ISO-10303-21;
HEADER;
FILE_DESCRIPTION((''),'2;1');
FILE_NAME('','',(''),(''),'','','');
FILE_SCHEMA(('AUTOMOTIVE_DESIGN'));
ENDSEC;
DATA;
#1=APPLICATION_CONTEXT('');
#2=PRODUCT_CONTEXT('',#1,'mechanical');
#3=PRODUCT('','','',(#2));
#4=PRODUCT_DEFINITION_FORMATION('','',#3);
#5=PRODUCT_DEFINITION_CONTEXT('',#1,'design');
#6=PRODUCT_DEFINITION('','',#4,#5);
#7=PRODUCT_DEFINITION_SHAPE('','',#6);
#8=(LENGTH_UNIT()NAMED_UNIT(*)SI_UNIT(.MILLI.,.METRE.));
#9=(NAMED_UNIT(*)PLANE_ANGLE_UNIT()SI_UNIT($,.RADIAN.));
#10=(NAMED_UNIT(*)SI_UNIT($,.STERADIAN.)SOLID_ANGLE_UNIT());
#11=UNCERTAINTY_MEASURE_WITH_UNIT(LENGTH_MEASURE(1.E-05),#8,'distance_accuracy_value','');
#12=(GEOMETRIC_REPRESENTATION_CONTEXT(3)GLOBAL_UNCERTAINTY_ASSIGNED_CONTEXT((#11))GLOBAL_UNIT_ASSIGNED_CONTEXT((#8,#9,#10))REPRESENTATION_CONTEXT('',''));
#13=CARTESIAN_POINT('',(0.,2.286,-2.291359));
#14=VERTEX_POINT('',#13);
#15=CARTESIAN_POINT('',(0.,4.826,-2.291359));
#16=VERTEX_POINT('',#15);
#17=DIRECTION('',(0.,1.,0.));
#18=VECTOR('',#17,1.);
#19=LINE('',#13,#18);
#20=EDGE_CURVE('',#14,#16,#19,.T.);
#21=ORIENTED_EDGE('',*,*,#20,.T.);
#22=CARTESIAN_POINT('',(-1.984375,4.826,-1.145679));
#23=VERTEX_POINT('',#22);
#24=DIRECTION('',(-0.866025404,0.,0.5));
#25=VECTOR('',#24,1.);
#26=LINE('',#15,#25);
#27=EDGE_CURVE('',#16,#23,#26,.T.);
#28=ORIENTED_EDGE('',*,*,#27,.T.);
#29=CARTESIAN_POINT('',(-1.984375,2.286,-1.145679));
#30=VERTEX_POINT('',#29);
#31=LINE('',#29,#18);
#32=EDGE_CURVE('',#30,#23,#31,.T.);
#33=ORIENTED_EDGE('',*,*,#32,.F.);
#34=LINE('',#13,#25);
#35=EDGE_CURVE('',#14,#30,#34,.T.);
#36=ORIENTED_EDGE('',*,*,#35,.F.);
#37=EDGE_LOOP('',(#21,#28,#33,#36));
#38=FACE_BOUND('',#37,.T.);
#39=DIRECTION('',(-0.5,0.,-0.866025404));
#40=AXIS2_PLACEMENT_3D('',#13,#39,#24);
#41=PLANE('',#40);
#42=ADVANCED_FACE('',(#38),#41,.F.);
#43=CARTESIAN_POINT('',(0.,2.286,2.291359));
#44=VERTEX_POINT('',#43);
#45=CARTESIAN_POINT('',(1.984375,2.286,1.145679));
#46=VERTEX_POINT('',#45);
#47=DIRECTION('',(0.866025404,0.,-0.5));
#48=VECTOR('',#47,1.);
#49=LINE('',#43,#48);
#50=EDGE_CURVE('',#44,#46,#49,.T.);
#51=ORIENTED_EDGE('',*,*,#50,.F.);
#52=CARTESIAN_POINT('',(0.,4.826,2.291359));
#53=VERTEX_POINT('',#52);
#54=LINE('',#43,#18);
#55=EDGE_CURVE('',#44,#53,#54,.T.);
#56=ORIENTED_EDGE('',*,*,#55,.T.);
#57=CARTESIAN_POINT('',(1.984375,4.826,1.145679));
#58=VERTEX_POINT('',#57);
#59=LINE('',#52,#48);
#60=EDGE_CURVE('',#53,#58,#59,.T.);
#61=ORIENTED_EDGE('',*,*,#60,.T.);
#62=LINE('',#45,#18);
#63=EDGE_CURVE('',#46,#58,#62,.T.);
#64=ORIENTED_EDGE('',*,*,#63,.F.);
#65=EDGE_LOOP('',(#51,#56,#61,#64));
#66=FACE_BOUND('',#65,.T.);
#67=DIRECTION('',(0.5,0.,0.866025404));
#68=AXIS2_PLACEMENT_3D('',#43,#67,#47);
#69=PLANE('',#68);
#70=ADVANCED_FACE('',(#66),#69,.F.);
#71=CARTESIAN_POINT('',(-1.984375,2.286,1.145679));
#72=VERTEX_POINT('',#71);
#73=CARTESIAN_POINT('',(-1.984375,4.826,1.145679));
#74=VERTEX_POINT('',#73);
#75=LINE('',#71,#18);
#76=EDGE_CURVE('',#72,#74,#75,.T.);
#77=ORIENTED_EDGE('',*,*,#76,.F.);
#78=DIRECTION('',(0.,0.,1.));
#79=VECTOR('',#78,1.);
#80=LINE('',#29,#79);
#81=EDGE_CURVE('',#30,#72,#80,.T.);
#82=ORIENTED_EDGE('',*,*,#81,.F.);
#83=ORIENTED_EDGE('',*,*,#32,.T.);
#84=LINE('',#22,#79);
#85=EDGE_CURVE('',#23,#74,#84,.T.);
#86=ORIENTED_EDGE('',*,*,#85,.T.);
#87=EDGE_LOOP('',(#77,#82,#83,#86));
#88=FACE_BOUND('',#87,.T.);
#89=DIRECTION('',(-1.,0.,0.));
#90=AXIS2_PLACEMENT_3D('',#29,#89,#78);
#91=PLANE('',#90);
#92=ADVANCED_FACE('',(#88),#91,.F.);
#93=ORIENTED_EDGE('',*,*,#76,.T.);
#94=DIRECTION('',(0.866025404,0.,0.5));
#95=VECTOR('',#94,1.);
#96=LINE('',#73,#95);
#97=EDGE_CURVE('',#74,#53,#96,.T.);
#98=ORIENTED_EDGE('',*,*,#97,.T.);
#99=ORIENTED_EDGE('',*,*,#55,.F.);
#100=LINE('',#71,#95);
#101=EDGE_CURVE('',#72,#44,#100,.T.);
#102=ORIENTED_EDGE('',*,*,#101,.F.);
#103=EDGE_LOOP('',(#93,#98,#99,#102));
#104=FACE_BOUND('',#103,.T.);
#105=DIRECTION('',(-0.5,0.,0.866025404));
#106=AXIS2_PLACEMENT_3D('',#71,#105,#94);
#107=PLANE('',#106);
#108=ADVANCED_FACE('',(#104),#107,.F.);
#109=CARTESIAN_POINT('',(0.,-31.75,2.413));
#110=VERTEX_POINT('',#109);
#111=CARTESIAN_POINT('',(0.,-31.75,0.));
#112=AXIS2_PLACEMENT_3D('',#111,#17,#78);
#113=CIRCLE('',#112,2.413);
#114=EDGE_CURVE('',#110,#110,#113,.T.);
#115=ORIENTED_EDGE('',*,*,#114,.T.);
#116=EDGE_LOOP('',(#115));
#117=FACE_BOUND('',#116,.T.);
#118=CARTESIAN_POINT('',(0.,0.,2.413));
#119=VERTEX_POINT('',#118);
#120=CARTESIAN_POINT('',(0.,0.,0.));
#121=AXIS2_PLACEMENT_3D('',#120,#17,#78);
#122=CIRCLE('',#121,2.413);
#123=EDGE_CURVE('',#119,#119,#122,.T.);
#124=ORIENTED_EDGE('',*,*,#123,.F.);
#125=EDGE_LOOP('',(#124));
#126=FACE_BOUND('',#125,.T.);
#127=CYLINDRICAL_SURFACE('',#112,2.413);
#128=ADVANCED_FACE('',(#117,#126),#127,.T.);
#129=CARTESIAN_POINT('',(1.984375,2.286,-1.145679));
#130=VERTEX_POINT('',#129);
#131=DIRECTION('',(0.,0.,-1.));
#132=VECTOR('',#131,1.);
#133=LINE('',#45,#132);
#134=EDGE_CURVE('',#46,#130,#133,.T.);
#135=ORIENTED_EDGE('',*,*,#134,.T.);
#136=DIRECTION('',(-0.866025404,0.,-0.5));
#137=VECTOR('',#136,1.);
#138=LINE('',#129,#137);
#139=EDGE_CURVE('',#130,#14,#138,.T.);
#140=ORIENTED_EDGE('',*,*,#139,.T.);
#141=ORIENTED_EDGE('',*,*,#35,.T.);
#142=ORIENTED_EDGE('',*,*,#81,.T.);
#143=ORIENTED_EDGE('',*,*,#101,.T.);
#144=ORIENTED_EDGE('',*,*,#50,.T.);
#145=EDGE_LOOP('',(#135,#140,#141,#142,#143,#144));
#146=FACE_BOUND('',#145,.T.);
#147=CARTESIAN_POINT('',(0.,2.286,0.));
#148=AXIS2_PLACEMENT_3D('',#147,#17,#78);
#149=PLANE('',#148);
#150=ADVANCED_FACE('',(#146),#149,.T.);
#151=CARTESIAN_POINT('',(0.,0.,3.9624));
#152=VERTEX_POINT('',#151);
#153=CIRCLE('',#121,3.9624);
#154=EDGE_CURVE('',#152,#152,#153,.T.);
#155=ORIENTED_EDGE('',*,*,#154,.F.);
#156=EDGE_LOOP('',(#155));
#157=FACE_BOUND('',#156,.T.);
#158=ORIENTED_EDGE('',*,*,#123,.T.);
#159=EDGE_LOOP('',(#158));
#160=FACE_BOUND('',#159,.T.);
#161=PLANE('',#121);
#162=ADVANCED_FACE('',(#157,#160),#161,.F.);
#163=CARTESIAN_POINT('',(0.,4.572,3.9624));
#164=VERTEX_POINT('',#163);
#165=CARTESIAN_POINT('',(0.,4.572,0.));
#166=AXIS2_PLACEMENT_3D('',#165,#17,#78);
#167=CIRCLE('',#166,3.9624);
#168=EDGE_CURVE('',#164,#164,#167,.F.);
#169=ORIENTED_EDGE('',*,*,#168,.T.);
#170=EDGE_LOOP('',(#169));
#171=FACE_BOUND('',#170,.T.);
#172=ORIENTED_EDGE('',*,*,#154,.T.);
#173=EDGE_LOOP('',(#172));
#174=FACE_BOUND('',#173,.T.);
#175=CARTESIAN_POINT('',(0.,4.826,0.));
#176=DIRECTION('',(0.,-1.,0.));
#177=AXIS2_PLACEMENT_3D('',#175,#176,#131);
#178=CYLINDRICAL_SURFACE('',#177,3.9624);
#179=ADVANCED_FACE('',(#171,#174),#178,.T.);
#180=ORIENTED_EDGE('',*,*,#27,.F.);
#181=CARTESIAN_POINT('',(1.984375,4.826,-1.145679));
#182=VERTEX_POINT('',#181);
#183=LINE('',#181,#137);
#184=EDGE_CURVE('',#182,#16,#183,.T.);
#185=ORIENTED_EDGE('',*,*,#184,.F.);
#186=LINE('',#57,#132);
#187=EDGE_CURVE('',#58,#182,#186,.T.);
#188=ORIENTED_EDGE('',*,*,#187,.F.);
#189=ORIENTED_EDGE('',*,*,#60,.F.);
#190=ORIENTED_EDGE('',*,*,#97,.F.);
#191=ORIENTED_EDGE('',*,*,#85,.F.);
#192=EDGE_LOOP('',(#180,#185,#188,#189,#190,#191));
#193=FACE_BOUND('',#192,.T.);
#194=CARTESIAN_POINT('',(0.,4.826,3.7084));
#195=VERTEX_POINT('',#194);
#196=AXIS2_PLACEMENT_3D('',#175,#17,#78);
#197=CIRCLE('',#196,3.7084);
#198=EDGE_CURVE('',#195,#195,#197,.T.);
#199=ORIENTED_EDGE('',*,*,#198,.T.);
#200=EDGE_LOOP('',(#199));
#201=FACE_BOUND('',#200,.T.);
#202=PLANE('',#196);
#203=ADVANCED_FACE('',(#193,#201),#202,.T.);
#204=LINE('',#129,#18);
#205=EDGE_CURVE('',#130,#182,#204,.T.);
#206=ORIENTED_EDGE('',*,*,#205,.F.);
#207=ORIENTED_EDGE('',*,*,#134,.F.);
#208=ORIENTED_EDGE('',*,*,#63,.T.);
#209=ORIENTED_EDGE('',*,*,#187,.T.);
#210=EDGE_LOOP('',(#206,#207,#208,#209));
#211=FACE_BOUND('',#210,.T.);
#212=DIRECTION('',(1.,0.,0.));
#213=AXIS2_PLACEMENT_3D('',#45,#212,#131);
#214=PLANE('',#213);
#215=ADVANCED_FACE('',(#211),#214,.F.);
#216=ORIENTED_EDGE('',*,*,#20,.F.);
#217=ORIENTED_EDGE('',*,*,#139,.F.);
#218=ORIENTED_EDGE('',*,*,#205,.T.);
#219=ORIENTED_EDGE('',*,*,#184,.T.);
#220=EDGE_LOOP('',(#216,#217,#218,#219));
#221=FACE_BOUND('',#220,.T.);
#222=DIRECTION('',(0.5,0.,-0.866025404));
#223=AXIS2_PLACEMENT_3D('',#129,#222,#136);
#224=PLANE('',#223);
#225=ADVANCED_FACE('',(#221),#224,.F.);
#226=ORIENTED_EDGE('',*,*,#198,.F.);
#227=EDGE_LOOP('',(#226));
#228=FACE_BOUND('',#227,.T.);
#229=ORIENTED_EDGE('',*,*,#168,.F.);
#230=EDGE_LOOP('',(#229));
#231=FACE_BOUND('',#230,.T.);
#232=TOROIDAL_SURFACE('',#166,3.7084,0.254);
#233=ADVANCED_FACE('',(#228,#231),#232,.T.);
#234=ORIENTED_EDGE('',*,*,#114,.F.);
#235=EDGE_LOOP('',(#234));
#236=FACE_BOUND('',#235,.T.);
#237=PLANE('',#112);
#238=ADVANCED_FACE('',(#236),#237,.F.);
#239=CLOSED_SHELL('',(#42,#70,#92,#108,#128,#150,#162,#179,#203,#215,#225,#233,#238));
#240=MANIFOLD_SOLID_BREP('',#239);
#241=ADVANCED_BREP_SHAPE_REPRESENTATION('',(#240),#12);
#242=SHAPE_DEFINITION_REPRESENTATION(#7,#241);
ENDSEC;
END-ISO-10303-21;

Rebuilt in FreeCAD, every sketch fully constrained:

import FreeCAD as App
import Part
import Sketcher

V = App.Vector
Q = App.Units.Quantity


def edges_at(feature, points):
    """Names of the edges that pass closest to the given points."""
    edges = feature.Shape.Edges
    near = lambda p: min(range(len(edges)), key=lambda i: edges[i].distToShape(Part.Vertex(*p))[0])
    return sorted({f"Edge{near(p) + 1}" for p in points})

doc = App.newDocument("Part")
body = doc.addObject("PartDesign::Body", "Body")

# Sketch on XZ plane
sketch1 = body.newObject("Sketcher::SketchObject", "Sketch")
sketch1.AttachmentSupport = (doc.getObject("XZ_Plane"), [""])
sketch1.MapMode = "FlatFace"
sketch1.addGeometry(Part.Circle(V(0, 0, 0), V(0, 0, 1), 2.4), False)
sketch1.addConstraint([
    Sketcher.Constraint("Coincident", 0, 3, -1, 1),
    Sketcher.Constraint("Diameter", 0, Q("0.19 in")),
])
pad1 = body.newObject("PartDesign::Pad", "Pad")
pad1.Profile = sketch1
pad1.Length = Q("1.25 in")

# Sketch on XZ plane
sketch2 = body.newObject("Sketcher::SketchObject", "Sketch001")
sketch2.AttachmentSupport = (doc.getObject("XZ_Plane"), [""])
sketch2.MapMode = "FlatFace"
sketch2.addGeometry(Part.Circle(V(0, 0, 0), V(0, 0, 1), 4), False)
sketch2.addConstraint([
    Sketcher.Constraint("Coincident", 0, 3, -1, 1),
    Sketcher.Constraint("Diameter", 0, Q("0.312 in")),
])
pad2 = body.newObject("PartDesign::Pad", "Pad001")
pad2.Profile = sketch2
pad2.Length = Q("0.19 in")
pad2.Reversed = True
doc.recompute()

fillet = body.newObject("PartDesign::Fillet", "Fillet")
fillet.Base = (pad2, edges_at(pad2, [(0, 4.826, -3.962)]))
fillet.Radius = Q("0.01 in")

# Sketch on XZ plane
sketch3 = body.newObject("Sketcher::SketchObject", "Sketch002")
sketch3.AttachmentSupport = (doc.getObject("XZ_Plane"), [""])
sketch3.MapMode = "FlatFace"
sketch3.AttachmentOffset = App.Placement(V(0, 0, -0.19 * 25.4), App.Rotation())
sketch3.addGeometry([
    Part.LineSegment(V(0, -2.3, 0), V(-2, -1.1, 0)),  # 0
    Part.LineSegment(V(-2, -1.1, 0), V(-2, 1.1, 0)),  # 1
    Part.LineSegment(V(-2, 1.1, 0), V(0, 2.3, 0)),  # 2
    Part.LineSegment(V(0, 2.3, 0), V(2, 1.1, 0)),  # 3
    Part.LineSegment(V(2, 1.1, 0), V(2, -1.1, 0)),  # 4
    Part.LineSegment(V(2, -1.1, 0), V(0, -2.3, 0)),  # 5
], False)
sketch3.addConstraint([
    Sketcher.Constraint("Coincident", 0, 2, 1, 1),
    Sketcher.Constraint("Coincident", 1, 2, 2, 1),
    Sketcher.Constraint("Coincident", 2, 2, 3, 1),
    Sketcher.Constraint("Coincident", 3, 2, 4, 1),
    Sketcher.Constraint("Coincident", 4, 2, 5, 1),
    Sketcher.Constraint("Coincident", 5, 2, 0, 1),
    Sketcher.Constraint("Vertical", 1),
    Sketcher.Constraint("Vertical", 4),
    Sketcher.Constraint("Symmetric", 0, 2, 3, 2, -1, 1),
    Sketcher.Constraint("Symmetric", 2, 2, 5, 2, -1, 1),
    Sketcher.Constraint("PointOnObject", 2, 2, -2),
    Sketcher.Constraint("Parallel", 2, 5),
    Sketcher.Constraint("Horizontal", 1, 2, 3, 2),
    Sketcher.Constraint("Angle", 0, Q("150 deg")),
    Sketcher.Constraint("DistanceX", 0, 2, -1, 1, Q("0.078125 in")),
    Sketcher.Constraint("DistanceY", 1, 1, 1, 2, Q("2.291359 mm")),
])
pocket1 = body.newObject("PartDesign::Pocket", "Pocket")
pocket1.Profile = sketch3
pocket1.Length = Q("0.1 in")
pocket1.Reversed = True

doc.recompute()
